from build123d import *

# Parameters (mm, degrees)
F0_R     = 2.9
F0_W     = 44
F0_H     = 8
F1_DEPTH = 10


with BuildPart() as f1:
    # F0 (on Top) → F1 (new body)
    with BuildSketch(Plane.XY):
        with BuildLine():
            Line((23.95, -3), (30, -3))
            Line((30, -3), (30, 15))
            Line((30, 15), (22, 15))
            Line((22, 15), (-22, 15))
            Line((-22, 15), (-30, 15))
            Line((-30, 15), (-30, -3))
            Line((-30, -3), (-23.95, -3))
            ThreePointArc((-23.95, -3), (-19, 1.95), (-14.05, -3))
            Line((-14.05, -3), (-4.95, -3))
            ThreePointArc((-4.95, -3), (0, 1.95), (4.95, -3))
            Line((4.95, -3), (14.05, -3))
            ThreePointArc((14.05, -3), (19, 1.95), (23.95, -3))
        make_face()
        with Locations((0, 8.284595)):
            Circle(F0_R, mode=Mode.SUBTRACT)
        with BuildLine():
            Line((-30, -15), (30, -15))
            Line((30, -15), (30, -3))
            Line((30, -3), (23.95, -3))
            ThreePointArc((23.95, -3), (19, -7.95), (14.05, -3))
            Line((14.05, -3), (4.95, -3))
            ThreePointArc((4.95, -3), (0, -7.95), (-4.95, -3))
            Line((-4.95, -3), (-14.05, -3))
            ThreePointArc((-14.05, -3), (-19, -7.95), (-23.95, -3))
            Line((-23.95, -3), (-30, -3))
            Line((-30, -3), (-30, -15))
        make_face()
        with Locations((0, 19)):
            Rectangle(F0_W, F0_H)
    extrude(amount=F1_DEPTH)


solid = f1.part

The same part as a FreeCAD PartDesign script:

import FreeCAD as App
import Part
import Sketcher
Q = App.Units.Quantity


def add_polygon(sketch, points):
    """Adds a closed chain of lines whose ends are joined by coincident constraints."""
    first, n = sketch.GeometryCount, len(points)
    for a, b in zip(points, points[1:] + points[:1]):
        sketch.addGeometry(Part.LineSegment(App.Vector(*a, 0), App.Vector(*b, 0)), False)
    for i in range(n):
        sketch.addConstraint(Sketcher.Constraint("Coincident", first + i, 2, first + (i + 1) % n, 1))

doc = App.newDocument("Part")
params = doc.addObject("Spreadsheet::Sheet", "Params")
for row, (alias, value) in enumerate([
    ("sketch1_diameter", "9.9 mm"),
    ("sketch1_diameter2", "5.8 mm"),
    ("sketch1_width", "8 mm"),
    ("sketch1_width2", "44 mm"),
    ("sketch1_height", "30 mm"),
    ("pad1_length", "10 mm"),
], start=1):
    params.set(f"A{row}", alias)
    params.set(f"B{row}", "=" + value)
    params.setAlias(f"B{row}", alias)

body = doc.addObject("PartDesign::Body", "Body")

sketch1 = doc.addObject("Sketcher::SketchObject", "Sketch")
body.addObject(sketch1)
sketch1.AttachmentSupport = (doc.XY_Plane, [""])
sketch1.MapMode = "FlatFace"
add_polygon(sketch1, [(30, 15), (22, 15), (22, 23), (-22, 23), (-22, 15), (-30, 15), (-30, -15), (30, -15)])
sketch1.addGeometry(Part.Circle(App.Vector(19, -3, 0), App.Vector(0, 0, 1), 5), False)
sketch1.addGeometry(Part.Circle(App.Vector(0, -3, 0), App.Vector(0, 0, 1), 5), False)
sketch1.addGeometry(Part.Circle(App.Vector(-19, -3, 0), App.Vector(0, 0, 1), 5), False)
sketch1.addGeometry(Part.Circle(App.Vector(0, 8.3, 0), App.Vector(0, 0, 1), 2.9), False)
sketch1.addConstraint(Sketcher.Constraint("Horizontal", 0))
sketch1.addConstraint(Sketcher.Constraint("Vertical", 1))
sketch1.addConstraint(Sketcher.Constraint("Horizontal", 2))
sketch1.addConstraint(Sketcher.Constraint("Vertical", 3))
sketch1.addConstraint(Sketcher.Constraint("Horizontal", 4))
sketch1.addConstraint(Sketcher.Constraint("Vertical", 5))
sketch1.addConstraint(Sketcher.Constraint("Horizontal", 6))
sketch1.addConstraint(Sketcher.Constraint("Vertical", 7))
sketch1.addConstraint(Sketcher.Constraint("Equal", 8, 9))
sketch1.addConstraint(Sketcher.Constraint("Equal", 9, 10))
sketch1.addConstraint(Sketcher.Constraint("Symmetric", 4, 2, 6, 2, -1, 1))
sketch1.addConstraint(Sketcher.Constraint("Symmetric", 8, 3, 10, 3, -2))
sketch1.addConstraint(Sketcher.Constraint("Symmetric", 0, 2, 3, 2, -2))
sketch1.addConstraint(Sketcher.Constraint("PointOnObject", 9, 3, -2))
sketch1.addConstraint(Sketcher.Constraint("PointOnObject", 11, 3, -2))
sketch1.addConstraint(Sketcher.Constraint("Horizontal", 8, 3, 9, 3))
sketch1.addConstraint(Sketcher.Constraint("Equal", 4, 1))
sketch1.addConstraint(Sketcher.Constraint("Diameter", 8, Q("9.9 mm")))
sketch1.addConstraint(Sketcher.Constraint("Diameter", 11, Q("5.8 mm")))
sketch1.addConstraint(Sketcher.Constraint("DistanceX", 0, 2, 0, 1, Q("8 mm")))
sketch1.addConstraint(Sketcher.Constraint("DistanceX", 2, 2, 2, 1, Q("44 mm")))
sketch1.addConstraint(Sketcher.Constraint("DistanceY", 5, 2, 5, 1, Q("30 mm")))
sketch1.addConstraint(Sketcher.Constraint("DistanceX", -1, 1, 8, 3, Q("19 mm")))
sketch1.addConstraint(Sketcher.Constraint("DistanceY", 8, 3, -1, 1, Q("3 mm")))
sketch1.addConstraint(Sketcher.Constraint("DistanceY", -1, 1, 11, 3, Q("8.284595 mm")))
sketch1.setExpression("Constraints[25]", "Params.sketch1_diameter")
sketch1.setExpression("Constraints[26]", "Params.sketch1_diameter2")
sketch1.setExpression("Constraints[27]", "Params.sketch1_width")
sketch1.setExpression("Constraints[28]", "Params.sketch1_width2")
sketch1.setExpression("Constraints[29]", "Params.sketch1_height")
pad1 = doc.addObject("PartDesign::Pad", "Pad")
body.addObject(pad1)
pad1.Profile = sketch1
pad1.setExpression("Length", "Params.pad1_length")

doc.recompute()
